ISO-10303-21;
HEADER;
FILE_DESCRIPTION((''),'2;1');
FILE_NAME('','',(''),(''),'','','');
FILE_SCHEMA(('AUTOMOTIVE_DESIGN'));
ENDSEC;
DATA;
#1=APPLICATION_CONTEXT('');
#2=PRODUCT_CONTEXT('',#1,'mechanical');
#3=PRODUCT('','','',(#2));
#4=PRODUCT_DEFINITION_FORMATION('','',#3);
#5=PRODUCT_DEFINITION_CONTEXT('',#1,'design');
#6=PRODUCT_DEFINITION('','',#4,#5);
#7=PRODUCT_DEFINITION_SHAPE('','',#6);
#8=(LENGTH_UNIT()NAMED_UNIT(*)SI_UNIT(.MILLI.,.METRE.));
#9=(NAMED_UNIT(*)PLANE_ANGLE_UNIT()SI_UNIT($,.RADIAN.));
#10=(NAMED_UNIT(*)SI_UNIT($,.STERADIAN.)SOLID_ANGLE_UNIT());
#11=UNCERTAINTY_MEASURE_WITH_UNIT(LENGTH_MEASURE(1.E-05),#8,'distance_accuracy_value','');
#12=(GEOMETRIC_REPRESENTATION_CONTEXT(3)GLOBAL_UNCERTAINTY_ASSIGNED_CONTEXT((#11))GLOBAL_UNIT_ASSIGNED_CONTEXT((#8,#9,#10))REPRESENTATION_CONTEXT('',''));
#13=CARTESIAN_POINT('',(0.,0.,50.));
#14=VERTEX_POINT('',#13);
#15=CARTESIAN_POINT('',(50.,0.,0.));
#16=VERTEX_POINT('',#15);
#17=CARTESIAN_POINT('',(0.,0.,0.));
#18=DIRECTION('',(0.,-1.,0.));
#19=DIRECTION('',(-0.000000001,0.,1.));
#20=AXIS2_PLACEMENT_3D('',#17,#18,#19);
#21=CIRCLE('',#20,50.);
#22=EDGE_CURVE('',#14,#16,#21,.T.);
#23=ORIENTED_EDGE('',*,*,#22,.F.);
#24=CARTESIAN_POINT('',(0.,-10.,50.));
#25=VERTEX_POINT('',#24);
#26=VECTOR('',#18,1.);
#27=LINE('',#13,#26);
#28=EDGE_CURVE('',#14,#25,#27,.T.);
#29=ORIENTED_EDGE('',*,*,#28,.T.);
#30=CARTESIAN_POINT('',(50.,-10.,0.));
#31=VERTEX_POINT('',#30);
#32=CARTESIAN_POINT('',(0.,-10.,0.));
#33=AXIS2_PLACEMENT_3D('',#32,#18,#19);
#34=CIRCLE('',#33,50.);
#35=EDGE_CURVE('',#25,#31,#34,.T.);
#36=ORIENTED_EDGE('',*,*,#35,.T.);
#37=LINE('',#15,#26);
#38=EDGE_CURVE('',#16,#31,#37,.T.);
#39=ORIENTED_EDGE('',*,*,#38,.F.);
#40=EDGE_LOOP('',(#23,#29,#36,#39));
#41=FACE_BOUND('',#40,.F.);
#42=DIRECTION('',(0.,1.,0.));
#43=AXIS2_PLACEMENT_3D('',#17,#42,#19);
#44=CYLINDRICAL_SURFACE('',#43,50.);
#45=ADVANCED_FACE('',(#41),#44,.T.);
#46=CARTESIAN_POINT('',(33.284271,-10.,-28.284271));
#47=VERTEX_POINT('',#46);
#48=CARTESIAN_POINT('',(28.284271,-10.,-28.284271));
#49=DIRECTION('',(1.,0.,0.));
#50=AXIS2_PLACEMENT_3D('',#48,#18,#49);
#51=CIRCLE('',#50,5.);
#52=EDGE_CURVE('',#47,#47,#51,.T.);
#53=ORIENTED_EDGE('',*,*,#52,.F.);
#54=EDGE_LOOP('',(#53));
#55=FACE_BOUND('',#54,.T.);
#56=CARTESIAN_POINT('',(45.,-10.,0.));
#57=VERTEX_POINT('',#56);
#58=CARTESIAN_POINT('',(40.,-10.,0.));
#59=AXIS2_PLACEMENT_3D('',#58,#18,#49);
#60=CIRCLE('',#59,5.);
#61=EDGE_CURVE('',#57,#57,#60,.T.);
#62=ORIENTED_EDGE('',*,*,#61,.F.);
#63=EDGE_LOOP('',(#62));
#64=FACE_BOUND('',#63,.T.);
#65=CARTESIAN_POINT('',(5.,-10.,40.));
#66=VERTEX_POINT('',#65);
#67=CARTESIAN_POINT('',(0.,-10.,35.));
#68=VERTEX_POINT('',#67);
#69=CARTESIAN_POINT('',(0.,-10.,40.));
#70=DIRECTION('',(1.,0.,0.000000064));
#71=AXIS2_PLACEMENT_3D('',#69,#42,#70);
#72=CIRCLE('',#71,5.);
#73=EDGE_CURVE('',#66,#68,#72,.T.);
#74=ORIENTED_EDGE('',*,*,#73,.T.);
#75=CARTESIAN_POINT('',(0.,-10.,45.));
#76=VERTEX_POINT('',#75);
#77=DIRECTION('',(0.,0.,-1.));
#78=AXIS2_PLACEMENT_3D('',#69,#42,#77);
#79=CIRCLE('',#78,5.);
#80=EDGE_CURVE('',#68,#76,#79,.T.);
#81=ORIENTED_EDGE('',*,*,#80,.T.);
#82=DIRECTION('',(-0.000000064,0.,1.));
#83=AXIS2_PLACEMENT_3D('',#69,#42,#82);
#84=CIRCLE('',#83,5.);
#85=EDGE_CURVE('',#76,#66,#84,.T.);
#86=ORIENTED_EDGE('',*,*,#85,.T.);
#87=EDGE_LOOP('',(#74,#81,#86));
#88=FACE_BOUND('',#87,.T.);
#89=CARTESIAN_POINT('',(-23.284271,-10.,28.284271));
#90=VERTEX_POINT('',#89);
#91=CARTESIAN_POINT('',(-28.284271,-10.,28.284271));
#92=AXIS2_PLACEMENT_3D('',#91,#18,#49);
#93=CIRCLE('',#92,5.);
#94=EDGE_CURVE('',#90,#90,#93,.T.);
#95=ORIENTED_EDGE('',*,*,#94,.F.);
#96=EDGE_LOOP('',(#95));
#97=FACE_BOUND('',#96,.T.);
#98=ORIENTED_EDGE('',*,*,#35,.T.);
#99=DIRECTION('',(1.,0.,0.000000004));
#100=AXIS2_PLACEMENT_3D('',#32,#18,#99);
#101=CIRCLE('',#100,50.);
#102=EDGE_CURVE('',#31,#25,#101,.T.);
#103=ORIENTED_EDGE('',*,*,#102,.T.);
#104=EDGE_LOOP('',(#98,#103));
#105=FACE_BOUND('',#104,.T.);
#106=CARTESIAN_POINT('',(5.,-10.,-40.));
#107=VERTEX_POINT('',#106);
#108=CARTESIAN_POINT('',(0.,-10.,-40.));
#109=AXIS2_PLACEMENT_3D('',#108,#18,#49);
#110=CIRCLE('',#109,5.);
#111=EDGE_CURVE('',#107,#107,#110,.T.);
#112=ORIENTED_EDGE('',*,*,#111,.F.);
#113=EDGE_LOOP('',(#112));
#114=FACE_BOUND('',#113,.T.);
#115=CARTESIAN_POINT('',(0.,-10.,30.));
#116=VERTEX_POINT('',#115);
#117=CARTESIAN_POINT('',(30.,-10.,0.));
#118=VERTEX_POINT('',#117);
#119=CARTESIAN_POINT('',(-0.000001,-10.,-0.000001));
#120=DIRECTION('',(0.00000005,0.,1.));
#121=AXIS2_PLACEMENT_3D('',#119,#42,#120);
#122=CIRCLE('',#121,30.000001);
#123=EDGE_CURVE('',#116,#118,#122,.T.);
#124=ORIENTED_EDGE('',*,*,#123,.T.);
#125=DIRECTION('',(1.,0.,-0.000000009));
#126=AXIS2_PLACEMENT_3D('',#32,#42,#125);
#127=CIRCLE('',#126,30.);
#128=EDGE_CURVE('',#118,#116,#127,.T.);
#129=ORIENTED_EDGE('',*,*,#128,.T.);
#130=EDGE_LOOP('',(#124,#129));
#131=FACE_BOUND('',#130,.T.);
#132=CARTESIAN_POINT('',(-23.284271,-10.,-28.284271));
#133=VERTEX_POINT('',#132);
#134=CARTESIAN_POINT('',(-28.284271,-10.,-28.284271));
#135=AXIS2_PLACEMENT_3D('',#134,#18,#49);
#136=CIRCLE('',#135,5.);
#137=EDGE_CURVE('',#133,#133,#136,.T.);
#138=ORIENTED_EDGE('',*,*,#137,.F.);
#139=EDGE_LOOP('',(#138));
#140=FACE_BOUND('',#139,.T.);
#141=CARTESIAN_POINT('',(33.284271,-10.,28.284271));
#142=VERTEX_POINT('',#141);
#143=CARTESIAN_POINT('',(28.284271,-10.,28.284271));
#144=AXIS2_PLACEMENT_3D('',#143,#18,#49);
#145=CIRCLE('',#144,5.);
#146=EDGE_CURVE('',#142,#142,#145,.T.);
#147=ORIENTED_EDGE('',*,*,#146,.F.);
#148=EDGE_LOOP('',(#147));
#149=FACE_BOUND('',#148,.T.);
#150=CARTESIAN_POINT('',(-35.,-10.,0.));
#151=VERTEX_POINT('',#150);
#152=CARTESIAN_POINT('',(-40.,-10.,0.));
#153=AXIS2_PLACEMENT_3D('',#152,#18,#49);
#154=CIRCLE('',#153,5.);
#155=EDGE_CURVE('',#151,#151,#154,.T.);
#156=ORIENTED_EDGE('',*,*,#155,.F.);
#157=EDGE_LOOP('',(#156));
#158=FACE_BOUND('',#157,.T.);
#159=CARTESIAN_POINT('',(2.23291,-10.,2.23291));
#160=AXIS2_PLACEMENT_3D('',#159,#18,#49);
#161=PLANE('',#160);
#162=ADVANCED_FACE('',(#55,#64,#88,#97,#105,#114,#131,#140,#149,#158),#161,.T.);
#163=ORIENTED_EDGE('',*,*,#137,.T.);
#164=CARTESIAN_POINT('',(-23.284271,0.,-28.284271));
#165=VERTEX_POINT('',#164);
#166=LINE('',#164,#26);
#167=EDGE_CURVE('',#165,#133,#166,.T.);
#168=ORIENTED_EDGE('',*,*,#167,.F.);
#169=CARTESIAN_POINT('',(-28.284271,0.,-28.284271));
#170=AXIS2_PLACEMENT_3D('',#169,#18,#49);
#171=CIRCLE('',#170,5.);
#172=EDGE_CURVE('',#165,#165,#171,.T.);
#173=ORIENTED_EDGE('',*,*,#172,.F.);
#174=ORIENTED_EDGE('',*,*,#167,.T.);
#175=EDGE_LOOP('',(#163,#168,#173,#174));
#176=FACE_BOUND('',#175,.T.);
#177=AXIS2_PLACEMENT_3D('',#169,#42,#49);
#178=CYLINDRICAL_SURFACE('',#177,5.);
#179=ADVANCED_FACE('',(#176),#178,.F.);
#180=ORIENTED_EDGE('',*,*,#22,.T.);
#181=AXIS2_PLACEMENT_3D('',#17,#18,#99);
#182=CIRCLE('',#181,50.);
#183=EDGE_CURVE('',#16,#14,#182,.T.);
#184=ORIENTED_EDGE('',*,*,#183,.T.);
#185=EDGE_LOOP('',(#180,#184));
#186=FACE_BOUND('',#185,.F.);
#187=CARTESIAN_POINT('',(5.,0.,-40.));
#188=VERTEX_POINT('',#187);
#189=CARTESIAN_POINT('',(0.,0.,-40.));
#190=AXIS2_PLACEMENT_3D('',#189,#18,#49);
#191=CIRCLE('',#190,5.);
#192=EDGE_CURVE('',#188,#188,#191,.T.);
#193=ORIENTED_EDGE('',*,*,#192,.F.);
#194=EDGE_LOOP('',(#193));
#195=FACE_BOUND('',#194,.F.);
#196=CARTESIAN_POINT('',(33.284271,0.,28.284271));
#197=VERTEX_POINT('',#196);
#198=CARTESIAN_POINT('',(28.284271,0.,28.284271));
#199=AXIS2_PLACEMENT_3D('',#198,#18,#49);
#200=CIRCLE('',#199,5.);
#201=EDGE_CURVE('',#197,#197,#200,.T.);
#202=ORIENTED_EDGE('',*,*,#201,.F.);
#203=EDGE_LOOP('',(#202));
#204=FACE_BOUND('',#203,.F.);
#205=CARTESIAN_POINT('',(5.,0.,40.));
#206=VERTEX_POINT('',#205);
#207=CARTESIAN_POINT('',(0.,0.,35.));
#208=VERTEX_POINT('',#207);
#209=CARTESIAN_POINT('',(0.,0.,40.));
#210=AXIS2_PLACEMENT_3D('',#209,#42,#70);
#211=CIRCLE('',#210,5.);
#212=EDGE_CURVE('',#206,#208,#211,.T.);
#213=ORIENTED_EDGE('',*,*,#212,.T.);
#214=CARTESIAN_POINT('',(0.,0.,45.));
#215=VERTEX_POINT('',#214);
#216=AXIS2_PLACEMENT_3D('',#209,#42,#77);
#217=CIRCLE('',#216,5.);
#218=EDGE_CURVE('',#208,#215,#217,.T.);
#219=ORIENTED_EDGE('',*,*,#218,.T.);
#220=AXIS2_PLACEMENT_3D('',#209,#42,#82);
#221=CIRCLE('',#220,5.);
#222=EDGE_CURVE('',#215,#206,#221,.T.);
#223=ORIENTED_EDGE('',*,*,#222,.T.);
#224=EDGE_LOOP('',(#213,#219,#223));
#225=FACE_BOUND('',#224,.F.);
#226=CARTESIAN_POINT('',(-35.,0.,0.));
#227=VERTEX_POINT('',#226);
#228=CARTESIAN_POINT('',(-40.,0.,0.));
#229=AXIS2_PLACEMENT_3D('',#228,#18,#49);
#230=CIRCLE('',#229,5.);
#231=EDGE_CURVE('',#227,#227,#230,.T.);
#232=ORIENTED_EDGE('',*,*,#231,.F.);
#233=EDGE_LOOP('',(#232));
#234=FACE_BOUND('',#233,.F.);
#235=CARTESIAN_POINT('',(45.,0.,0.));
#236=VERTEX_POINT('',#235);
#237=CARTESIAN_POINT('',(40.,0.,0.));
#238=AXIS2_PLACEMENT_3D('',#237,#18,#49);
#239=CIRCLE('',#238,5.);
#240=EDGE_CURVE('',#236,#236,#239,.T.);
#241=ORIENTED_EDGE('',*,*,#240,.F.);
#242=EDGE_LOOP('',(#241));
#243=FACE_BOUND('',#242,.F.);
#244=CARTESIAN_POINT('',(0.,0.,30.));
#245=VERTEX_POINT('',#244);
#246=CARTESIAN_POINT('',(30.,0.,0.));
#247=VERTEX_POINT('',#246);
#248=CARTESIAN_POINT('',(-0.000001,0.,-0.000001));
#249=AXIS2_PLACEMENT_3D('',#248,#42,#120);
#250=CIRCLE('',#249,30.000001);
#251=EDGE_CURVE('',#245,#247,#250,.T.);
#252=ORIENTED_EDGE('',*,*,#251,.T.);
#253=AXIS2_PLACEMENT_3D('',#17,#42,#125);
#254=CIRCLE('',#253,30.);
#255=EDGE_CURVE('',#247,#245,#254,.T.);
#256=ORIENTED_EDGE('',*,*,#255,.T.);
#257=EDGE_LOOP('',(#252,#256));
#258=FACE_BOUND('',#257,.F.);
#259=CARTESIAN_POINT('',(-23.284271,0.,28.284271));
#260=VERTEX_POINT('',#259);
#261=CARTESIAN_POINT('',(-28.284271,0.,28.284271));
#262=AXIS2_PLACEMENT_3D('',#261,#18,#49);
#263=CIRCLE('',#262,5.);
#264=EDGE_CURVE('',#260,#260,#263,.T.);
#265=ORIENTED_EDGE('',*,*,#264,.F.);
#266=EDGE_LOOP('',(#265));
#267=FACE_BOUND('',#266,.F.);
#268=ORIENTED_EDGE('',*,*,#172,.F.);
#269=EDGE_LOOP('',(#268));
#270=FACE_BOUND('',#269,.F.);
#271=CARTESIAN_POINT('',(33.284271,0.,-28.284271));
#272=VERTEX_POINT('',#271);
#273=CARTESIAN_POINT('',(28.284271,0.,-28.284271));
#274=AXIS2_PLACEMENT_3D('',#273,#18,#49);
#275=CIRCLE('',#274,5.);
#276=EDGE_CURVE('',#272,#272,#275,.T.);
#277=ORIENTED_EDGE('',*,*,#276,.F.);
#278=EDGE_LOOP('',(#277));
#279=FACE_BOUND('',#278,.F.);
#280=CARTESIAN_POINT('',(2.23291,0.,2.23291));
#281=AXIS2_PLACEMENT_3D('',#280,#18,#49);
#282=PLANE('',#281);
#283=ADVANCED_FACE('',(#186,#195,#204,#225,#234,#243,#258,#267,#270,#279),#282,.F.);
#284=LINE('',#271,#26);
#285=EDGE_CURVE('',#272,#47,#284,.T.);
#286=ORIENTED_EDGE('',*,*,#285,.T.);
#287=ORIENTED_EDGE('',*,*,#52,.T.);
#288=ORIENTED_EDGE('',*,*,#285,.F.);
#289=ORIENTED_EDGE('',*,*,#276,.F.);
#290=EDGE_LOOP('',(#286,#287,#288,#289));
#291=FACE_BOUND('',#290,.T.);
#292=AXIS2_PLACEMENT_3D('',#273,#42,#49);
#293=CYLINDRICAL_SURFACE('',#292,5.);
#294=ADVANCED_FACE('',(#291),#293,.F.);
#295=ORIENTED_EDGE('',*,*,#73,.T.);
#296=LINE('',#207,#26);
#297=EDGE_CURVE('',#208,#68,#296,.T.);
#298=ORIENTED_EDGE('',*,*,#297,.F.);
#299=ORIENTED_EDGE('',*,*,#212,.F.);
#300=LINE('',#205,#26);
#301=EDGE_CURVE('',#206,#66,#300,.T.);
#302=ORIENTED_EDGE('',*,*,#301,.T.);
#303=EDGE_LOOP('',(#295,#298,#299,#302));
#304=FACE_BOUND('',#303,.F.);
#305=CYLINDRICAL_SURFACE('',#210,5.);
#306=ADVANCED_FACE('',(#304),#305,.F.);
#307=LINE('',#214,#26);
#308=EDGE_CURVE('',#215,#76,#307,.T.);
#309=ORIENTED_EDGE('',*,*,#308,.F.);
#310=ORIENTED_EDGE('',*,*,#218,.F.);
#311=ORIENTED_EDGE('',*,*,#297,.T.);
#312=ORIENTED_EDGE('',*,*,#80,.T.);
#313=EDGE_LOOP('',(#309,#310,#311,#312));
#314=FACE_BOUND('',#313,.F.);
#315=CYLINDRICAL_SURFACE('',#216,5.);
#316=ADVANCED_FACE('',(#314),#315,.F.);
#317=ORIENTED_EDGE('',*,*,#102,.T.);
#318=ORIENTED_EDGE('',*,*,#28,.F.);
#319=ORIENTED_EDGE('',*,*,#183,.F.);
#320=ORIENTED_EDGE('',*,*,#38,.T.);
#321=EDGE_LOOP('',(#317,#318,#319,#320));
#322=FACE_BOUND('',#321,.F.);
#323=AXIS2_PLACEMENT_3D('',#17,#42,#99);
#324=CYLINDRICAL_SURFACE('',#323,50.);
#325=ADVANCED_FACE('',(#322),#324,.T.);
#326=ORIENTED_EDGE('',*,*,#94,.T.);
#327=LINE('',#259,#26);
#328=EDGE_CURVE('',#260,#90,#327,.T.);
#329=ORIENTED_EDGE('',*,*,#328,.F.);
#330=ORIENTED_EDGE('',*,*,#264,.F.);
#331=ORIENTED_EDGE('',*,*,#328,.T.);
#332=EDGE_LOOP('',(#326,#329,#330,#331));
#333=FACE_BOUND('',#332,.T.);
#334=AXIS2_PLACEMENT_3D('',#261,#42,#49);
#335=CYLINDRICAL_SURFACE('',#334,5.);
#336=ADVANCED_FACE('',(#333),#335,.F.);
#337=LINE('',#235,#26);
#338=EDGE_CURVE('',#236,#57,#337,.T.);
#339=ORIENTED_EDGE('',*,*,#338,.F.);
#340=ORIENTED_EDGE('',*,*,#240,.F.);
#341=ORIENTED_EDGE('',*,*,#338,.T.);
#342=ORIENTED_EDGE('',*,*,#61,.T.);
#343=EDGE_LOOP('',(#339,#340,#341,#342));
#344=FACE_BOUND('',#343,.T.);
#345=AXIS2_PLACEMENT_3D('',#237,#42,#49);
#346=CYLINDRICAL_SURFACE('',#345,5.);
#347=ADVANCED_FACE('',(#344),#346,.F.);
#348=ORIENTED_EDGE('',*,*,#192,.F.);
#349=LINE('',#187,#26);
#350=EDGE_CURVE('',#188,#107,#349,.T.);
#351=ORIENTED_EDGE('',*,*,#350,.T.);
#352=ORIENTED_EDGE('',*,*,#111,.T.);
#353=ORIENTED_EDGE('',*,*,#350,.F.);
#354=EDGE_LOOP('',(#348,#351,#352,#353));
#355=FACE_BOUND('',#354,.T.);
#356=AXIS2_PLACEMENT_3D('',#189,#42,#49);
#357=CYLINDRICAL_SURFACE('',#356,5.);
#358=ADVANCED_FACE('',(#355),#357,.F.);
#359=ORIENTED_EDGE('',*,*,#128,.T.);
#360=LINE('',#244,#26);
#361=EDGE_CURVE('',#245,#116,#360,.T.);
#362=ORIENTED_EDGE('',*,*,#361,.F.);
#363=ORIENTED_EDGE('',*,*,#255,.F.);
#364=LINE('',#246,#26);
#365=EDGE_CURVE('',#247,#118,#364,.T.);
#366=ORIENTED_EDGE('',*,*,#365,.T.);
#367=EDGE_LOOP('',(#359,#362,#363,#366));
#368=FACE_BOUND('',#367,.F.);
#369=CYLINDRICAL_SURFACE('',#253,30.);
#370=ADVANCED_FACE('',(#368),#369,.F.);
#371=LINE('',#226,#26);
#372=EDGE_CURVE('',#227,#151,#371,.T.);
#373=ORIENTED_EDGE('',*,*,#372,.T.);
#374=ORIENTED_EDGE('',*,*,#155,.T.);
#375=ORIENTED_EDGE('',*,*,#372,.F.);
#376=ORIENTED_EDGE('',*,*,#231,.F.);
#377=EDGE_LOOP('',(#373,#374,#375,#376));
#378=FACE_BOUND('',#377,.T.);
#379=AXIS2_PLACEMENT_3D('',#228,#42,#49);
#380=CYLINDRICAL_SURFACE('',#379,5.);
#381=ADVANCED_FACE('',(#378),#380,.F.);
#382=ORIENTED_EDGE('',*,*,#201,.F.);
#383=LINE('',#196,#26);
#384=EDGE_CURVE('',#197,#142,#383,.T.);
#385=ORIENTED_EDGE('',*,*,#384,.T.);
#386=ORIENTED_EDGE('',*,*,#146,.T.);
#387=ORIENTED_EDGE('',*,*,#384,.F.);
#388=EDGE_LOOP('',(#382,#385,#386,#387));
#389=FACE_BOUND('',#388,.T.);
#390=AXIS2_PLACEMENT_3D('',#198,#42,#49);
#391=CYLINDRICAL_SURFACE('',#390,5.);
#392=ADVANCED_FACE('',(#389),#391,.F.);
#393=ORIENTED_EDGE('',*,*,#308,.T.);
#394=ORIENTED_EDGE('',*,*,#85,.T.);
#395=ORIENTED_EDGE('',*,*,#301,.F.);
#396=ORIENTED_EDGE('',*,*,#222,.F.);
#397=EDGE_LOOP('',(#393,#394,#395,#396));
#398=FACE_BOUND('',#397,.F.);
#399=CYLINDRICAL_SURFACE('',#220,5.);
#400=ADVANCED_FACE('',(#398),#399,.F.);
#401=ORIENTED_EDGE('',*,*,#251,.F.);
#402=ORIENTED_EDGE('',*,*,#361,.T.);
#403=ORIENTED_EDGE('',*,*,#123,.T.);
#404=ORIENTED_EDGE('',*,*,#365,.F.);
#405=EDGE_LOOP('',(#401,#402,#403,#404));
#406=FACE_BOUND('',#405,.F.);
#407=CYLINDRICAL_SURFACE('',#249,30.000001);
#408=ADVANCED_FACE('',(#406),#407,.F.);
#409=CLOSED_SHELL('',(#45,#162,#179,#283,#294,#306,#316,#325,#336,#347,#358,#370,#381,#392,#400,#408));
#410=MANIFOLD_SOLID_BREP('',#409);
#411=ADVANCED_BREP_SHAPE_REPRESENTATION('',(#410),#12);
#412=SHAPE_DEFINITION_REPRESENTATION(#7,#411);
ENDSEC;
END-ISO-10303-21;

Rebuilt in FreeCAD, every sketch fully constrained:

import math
import FreeCAD as App
import Part
import Sketcher
Q = App.Units.Quantity

doc = App.newDocument("Part")
body = doc.addObject("PartDesign::Body", "Body")

# Sketch on XZ plane
sketch1 = doc.addObject("Sketcher::SketchObject", "Sketch")
body.addObject(sketch1)
sketch1.AttachmentSupport = (doc.XZ_Plane, [""])
sketch1.MapMode = "FlatFace"
sketch1.addGeometry([
    Part.ArcOfCircle(Part.Circle(App.Vector(0, 0, 0), App.Vector(0, 0, 1), 50), math.radians(90), math.radians(360)),  # 0
    Part.ArcOfCircle(Part.Circle(App.Vector(0, 0, 0), App.Vector(0, 0, 1), 50), math.radians(0), math.radians(90)),  # 1
    Part.Circle(App.Vector(-28.3, -28.3, 0), App.Vector(0, 0, 1), 5),  # 2
    Part.Circle(App.Vector(0, -40, 0), App.Vector(0, 0, 1), 5),  # 3
    Part.Circle(App.Vector(28.3, -28.3, 0), App.Vector(0, 0, 1), 5),  # 4
    Part.Circle(App.Vector(-40, 0, 0), App.Vector(0, 0, 1), 5),  # 5
    Part.Circle(App.Vector(-28.3, 28.3, 0), App.Vector(0, 0, 1), 5),  # 6
    Part.ArcOfCircle(Part.Circle(App.Vector(0, 0, 0), App.Vector(0, 0, 1), 30), math.radians(0), math.radians(90)),  # 7
    Part.ArcOfCircle(Part.Circle(App.Vector(0, 0, 0), App.Vector(0, 0, 1), 30), math.radians(90), math.radians(360)),  # 8
    Part.Circle(App.Vector(40, 0, 0), App.Vector(0, 0, 1), 5),  # 9
    Part.ArcOfCircle(Part.Circle(App.Vector(0, 40, 0), App.Vector(0, 0, 1), 5), math.radians(-90), math.radians(0)),  # 10
    Part.ArcOfCircle(Part.Circle(App.Vector(0, 40, 0), App.Vector(0, 0, 1), 5), math.radians(90), math.radians(270)),  # 11
    Part.ArcOfCircle(Part.Circle(App.Vector(0, 40, 0), App.Vector(0, 0, 1), 5), math.radians(0), math.radians(90)),  # 12
    Part.Circle(App.Vector(28.3, 28.3, 0), App.Vector(0, 0, 1), 5),  # 13
], False)
sketch1.addConstraint([
    Sketcher.Constraint("Tangent", 0, 1, 1, 2),
    Sketcher.Constraint("Coincident", 1, 1, 0, 2),
    Sketcher.Constraint("Tangent", 7, 1, 8, 2),
    Sketcher.Constraint("Coincident", 8, 1, 7, 2),
    Sketcher.Constraint("Tangent", 10, 1, 11, 2),
    Sketcher.Constraint("Tangent", 11, 1, 12, 2),
    Sketcher.Constraint("Tangent", 12, 1, 10, 2),
    Sketcher.Constraint("Coincident", 0, 3, -1, 1),
    Sketcher.Constraint("Coincident", 7, 3, -1, 1),
    Sketcher.Constraint("Equal", 2, 3),
    Sketcher.Constraint("Equal", 3, 4),
    Sketcher.Constraint("Equal", 4, 5),
    Sketcher.Constraint("Equal", 5, 6),
    Sketcher.Constraint("Equal", 6, 9),
    Sketcher.Constraint("Equal", 9, 10),
    Sketcher.Constraint("Equal", 12, 13),
    Sketcher.Constraint("Symmetric", 4, 3, 6, 3, -1, 1),
    Sketcher.Constraint("Symmetric", 5, 3, 9, 3, -1, 1),
    Sketcher.Constraint("Symmetric", 3, 3, 10, 3, -1, 1),
    Sketcher.Constraint("Symmetric", 2, 3, 13, 3, -1, 1),
    Sketcher.Constraint("Symmetric", 2, 3, 4, 3, -2),
    Sketcher.Constraint("PointOnObject", 3, 3, -2),
    Sketcher.Constraint("PointOnObject", 5, 3, -1),
    Sketcher.Constraint("PointOnObject", 0, 1, -2),
    Sketcher.Constraint("PointOnObject", 1, 1, -1),
    Sketcher.Constraint("PointOnObject", 7, 1, -1),
    Sketcher.Constraint("PointOnObject", 8, 1, -2),
    Sketcher.Constraint("PointOnObject", 10, 1, -2),
    Sketcher.Constraint("PointOnObject", 11, 1, -2),
    Sketcher.Constraint("Horizontal", 11, 3, 12, 1),
    Sketcher.Constraint("Diameter", 2, Q("10 mm")),
    Sketcher.Constraint("Radius", 0, Q("50 mm")),
    Sketcher.Constraint("Radius", 7, Q("30.000001 mm")),
    Sketcher.Constraint("DistanceY", 3, 3, -1, 1, Q("40 mm")),
    Sketcher.Constraint("DistanceX", 5, 3, -1, 1, Q("40 mm")),
    Sketcher.Constraint("DistanceX", 2, 3, -1, 1, Q("28.284271 mm")),
    Sketcher.Constraint("DistanceY", 2, 3, -1, 1, Q("28.284271 mm")),
])
pad1 = doc.addObject("PartDesign::Pad", "Pad")
body.addObject(pad1)
pad1.Profile = sketch1
pad1.Length = 10

doc.recompute()
